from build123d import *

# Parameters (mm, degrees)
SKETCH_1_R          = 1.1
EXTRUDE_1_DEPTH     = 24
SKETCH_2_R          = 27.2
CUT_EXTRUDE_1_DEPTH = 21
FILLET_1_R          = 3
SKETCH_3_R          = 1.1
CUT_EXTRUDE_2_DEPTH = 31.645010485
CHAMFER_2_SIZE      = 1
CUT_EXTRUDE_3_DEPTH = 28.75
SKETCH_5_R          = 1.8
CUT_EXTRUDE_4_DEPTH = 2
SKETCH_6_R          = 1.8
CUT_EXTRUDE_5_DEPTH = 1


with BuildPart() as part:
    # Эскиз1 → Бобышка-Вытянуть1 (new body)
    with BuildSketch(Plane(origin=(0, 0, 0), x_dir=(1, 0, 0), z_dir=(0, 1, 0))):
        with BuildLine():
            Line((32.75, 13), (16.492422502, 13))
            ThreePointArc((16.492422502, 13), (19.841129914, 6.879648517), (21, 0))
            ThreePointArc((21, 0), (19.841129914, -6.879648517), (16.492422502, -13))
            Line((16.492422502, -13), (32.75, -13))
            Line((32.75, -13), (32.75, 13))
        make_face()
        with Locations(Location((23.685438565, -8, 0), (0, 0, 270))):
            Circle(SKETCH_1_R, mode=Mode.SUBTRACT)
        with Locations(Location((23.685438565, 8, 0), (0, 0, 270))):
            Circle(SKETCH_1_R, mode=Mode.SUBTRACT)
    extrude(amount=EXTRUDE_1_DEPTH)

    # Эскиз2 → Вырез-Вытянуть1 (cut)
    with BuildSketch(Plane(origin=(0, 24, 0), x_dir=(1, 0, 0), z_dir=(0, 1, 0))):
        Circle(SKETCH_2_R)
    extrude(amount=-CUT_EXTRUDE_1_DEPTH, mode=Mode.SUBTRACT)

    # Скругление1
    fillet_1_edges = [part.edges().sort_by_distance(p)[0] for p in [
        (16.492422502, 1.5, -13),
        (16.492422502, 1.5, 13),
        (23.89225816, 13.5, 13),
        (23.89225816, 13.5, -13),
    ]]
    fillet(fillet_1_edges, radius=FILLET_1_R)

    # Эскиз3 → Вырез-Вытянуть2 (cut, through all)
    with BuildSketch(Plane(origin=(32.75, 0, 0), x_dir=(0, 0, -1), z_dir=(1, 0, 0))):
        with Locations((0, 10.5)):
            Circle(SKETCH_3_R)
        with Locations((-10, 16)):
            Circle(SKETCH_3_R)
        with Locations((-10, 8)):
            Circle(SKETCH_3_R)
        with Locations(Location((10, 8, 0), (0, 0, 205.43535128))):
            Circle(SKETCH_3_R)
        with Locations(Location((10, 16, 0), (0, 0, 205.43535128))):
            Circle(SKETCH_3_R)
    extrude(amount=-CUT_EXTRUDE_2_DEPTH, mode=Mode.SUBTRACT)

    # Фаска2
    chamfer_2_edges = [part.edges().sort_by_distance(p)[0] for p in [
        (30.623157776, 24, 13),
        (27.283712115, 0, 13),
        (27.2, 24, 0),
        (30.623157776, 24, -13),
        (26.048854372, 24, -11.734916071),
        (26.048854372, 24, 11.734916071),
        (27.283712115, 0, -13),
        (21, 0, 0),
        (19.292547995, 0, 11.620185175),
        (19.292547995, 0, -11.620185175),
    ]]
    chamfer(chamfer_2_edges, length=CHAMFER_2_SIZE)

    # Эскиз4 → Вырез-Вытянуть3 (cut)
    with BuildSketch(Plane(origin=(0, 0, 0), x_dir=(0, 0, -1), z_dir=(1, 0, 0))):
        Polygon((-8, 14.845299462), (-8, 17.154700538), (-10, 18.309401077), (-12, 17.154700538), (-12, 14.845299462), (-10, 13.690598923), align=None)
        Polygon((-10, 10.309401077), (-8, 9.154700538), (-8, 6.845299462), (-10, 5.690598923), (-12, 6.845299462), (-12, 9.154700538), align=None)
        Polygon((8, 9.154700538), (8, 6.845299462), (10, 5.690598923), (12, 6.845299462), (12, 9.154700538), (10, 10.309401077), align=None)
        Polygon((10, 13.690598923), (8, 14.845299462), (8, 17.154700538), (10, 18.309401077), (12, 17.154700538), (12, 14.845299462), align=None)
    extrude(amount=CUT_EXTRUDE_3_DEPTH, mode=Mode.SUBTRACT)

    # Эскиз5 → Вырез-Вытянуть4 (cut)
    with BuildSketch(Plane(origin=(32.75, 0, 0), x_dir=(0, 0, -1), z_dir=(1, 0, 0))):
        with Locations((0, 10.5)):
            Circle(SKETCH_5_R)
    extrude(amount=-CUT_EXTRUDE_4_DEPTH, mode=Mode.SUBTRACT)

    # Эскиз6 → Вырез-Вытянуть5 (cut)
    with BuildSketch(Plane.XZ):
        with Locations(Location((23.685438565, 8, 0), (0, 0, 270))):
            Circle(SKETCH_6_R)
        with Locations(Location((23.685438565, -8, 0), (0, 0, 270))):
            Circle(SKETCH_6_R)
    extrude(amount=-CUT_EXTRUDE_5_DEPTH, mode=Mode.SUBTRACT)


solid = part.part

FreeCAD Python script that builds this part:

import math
import FreeCAD as App
import Part
import Sketcher

V = App.Vector
Q = App.Units.Quantity


def edges_at(feature, points):
    """Names of the edges that pass closest to the given points."""
    edges = feature.Shape.Edges
    near = lambda p: min(range(len(edges)), key=lambda i: edges[i].distToShape(Part.Vertex(*p))[0])
    return sorted({f"Edge{near(p) + 1}" for p in points})


def add_polygon(sketch, points):
    """Adds a closed chain of lines whose ends are joined by coincident constraints."""
    first, n = sketch.GeometryCount, len(points)
    for a, b in zip(points, points[1:] + points[:1]):
        sketch.addGeometry(Part.LineSegment(App.Vector(*a, 0), App.Vector(*b, 0)), False)
    for i in range(n):
        sketch.addConstraint(Sketcher.Constraint("Coincident", first + i, 2, first + (i + 1) % n, 1))

doc = App.newDocument("Part")
body = doc.addObject("PartDesign::Body", "Body")

sketch1 = body.newObject("Sketcher::SketchObject", "Sketch")
sketch1.AttachmentSupport = (doc.getObject("XZ_Plane"), [""])
sketch1.MapMode = "FlatFace"
sketch1.addGeometry(Part.LineSegment(V(32.75, -13, 0), V(16.492423, -13, 0)), False)
sketch1.addGeometry(Part.ArcOfCircle(Part.Circle(V(0, 0, 0), V(0, 0, 1), 21), math.radians(-38.24662), math.radians(0)), False)
sketch1.addGeometry(Part.ArcOfCircle(Part.Circle(V(0, 0, 0), V(0, 0, 1), 21), math.radians(0), math.radians(38.24662)), False)
sketch1.addGeometry(Part.LineSegment(V(16.492423, 13, 0), V(32.75, 13, 0)), False)
sketch1.addGeometry(Part.LineSegment(V(32.75, 13, 0), V(32.75, -13, 0)), False)
sketch1.addGeometry(Part.Circle(V(23.685439, 8, 0), V(0, 0, 1), 1.1), False)
sketch1.addGeometry(Part.Circle(V(23.685439, -8, 0), V(0, 0, 1), 1.1), False)
sketch1.addConstraint(Sketcher.Constraint("Coincident", 0, 2, 1, 1))
sketch1.addConstraint(Sketcher.Constraint("Tangent", 1, 2, 2, 1))
sketch1.addConstraint(Sketcher.Constraint("Coincident", 2, 2, 3, 1))
sketch1.addConstraint(Sketcher.Constraint("Coincident", 3, 2, 4, 1))
sketch1.addConstraint(Sketcher.Constraint("Coincident", 4, 2, 0, 1))
sketch1.addConstraint(Sketcher.Constraint("Horizontal", 0))
sketch1.addConstraint(Sketcher.Constraint("Horizontal", 3))
sketch1.addConstraint(Sketcher.Constraint("Vertical", 4))
sketch1.addConstraint(Sketcher.Constraint("Coincident", 1, 3, -1, 1))
sketch1.addConstraint(Sketcher.Constraint("Equal", 1, 2))
sketch1.addConstraint(Sketcher.Constraint("Equal", 5, 6))
sketch1.addConstraint(Sketcher.Constraint("Symmetric", 5, 3, 6, 3, -1))
sketch1.addConstraint(Sketcher.Constraint("PointOnObject", 1, 2, -1))
sketch1.addConstraint(Sketcher.Constraint("Vertical", 0, 2, 2, 2))
sketch1.addConstraint(Sketcher.Constraint("Radius", 1, 21.0))
sketch1.addConstraint(Sketcher.Constraint("Diameter", 5, 2.2))
sketch1.addConstraint(Sketcher.Constraint("DistanceY", 4, 2, 4, 1, 26.0))
sketch1.addConstraint(Sketcher.Constraint("DistanceY", -1, 1, 5, 3, 8.0))
sketch1.addConstraint(Sketcher.Constraint("DistanceX", -1, 1, 3, 2, 32.75))
sketch1.addConstraint(Sketcher.Constraint("DistanceX", -1, 1, 5, 3, 23.685439))
pad1 = body.newObject("PartDesign::Pad", "Pad")
pad1.Profile = sketch1
pad1.Length = 24
pad1.Reversed = True

sketch2 = body.newObject("Sketcher::SketchObject", "Sketch001")
sketch2.AttachmentSupport = (doc.getObject("XZ_Plane"), [""])
sketch2.MapMode = "FlatFace"
sketch2.AttachmentOffset = App.Placement(V(0, 0, -24), App.Rotation())
sketch2.addGeometry(Part.Circle(V(0, 0, 0), V(0, 0, 1), 27.2), False)
sketch2.addConstraint(Sketcher.Constraint("Coincident", 0, 3, -1, 1))
sketch2.addConstraint(Sketcher.Constraint("Diameter", 0, 54.4))
pocket1 = body.newObject("PartDesign::Pocket", "Pocket")
pocket1.Profile = sketch2
pocket1.Length = 21
pocket1.Reversed = True
doc.recompute()

fillet = body.newObject("PartDesign::Fillet", "Fillet")
fillet.Base = (pocket1, edges_at(pocket1, [
    (16.492, 1.5, -13),
    (16.492, 1.5, 13),
    (23.892, 13.5, 13),
    (23.892, 13.5, -13),
]))
fillet.Radius = 3

sketch3 = body.newObject("Sketcher::SketchObject", "Sketch002")
sketch3.AttachmentSupport = (doc.getObject("YZ_Plane"), [""])
sketch3.MapMode = "FlatFace"
sketch3.AttachmentOffset = App.Placement(V(0, 0, 32.75), App.Rotation())
sketch3.addGeometry(Part.Circle(V(10.5, 0, 0), V(0, 0, 1), 1.1), False)
sketch3.addGeometry(Part.Circle(V(16, 10, 0), V(0, 0, 1), 1.1), False)
sketch3.addGeometry(Part.Circle(V(8, 10, 0), V(0, 0, 1), 1.1), False)
sketch3.addGeometry(Part.Circle(V(8, -10, 0), V(0, 0, 1), 1.1), False)
sketch3.addGeometry(Part.Circle(V(16, -10, 0), V(0, 0, 1), 1.1), False)
sketch3.addConstraint(Sketcher.Constraint("Equal", 0, 1))
sketch3.addConstraint(Sketcher.Constraint("Equal", 1, 2))
sketch3.addConstraint(Sketcher.Constraint("Equal", 2, 3))
sketch3.addConstraint(Sketcher.Constraint("Equal", 3, 4))
sketch3.addConstraint(Sketcher.Constraint("Symmetric", 2, 3, 3, 3, -1))
sketch3.addConstraint(Sketcher.Constraint("Symmetric", 1, 3, 4, 3, -1))
sketch3.addConstraint(Sketcher.Constraint("PointOnObject", 0, 3, -1))
sketch3.addConstraint(Sketcher.Constraint("Horizontal", 1, 3, 2, 3))
sketch3.addConstraint(Sketcher.Constraint("Diameter", 0, 2.2))
sketch3.addConstraint(Sketcher.Constraint("DistanceX", -1, 1, 1, 3, 16.0))
sketch3.addConstraint(Sketcher.Constraint("DistanceY", -1, 1, 1, 3, 10.0))
sketch3.addConstraint(Sketcher.Constraint("DistanceX", -1, 1, 2, 3, 8.0))
sketch3.addConstraint(Sketcher.Constraint("DistanceX", -1, 1, 0, 3, 10.5))
pocket2 = body.newObject("PartDesign::Pocket", "Pocket001")
pocket2.Profile = sketch3
pocket2.Type = "ThroughAll"
doc.recompute()

chamfer = body.newObject("PartDesign::Chamfer", "Chamfer")
chamfer.Base = (pocket2, edges_at(pocket2, [
    (30.623, 24, 13),
    (27.284, 0, 13),
    (27.2, 24, 0),
    (30.623, 24, -13),
    (26.049, 24, -11.735),
    (26.049, 24, 11.735),
    (27.284, 0, -13),
    (20.517, 0, -4.478),
    (19.293, 0, 11.62),
    (19.293, 0, -11.62),
]))
chamfer.Size = 1

sketch4 = body.newObject("Sketcher::SketchObject", "Sketch003")
sketch4.AttachmentSupport = (doc.getObject("YZ_Plane"), [""])
sketch4.MapMode = "FlatFace"
add_polygon(sketch4, [(14.845299, 8), (17.154701, 8), (18.309401, 10), (17.154701, 12), (14.845299, 12), (13.690599, 10)])
add_polygon(sketch4, [(9.154701, 8), (10.309401, 10), (9.154701, 12), (6.845299, 12), (5.690599, 10), (6.845299, 8)])
add_polygon(sketch4, [(9.154701, -8), (6.845299, -8), (5.690599, -10), (6.845299, -12), (9.154701, -12), (10.309401, -10)])
add_polygon(sketch4, [(14.845299, -8), (13.690599, -10), (14.845299, -12), (17.154701, -12), (18.309401, -10), (17.154701, -8)])
sketch4.addConstraint(Sketcher.Constraint("Horizontal", 0))
sketch4.addConstraint(Sketcher.Constraint("Horizontal", 3))
sketch4.addConstraint(Sketcher.Constraint("Horizontal", 8))
sketch4.addConstraint(Sketcher.Constraint("Horizontal", 11))
sketch4.addConstraint(Sketcher.Constraint("Horizontal", 12))
sketch4.addConstraint(Sketcher.Constraint("Horizontal", 15))
sketch4.addConstraint(Sketcher.Constraint("Horizontal", 20))
sketch4.addConstraint(Sketcher.Constraint("Horizontal", 23))
sketch4.addConstraint(Sketcher.Constraint("Symmetric", 10, 2, 12, 2, -1))
sketch4.addConstraint(Sketcher.Constraint("Symmetric", 9, 2, 13, 2, -1))
sketch4.addConstraint(Sketcher.Constraint("Symmetric", 8, 2, 14, 2, -1))
sketch4.addConstraint(Sketcher.Constraint("Symmetric", 6, 2, 16, 2, -1))
sketch4.addConstraint(Sketcher.Constraint("Symmetric", 4, 2, 18, 2, -1))
sketch4.addConstraint(Sketcher.Constraint("Symmetric", 3, 2, 19, 2, -1))
sketch4.addConstraint(Sketcher.Constraint("Symmetric", 1, 2, 21, 2, -1))
sketch4.addConstraint(Sketcher.Constraint("Symmetric", 0, 2, 22, 2, -1))
sketch4.addConstraint(Sketcher.Constraint("Parallel", 1, 4))
sketch4.addConstraint(Sketcher.Constraint("Parallel", 2, 5))
sketch4.addConstraint(Sketcher.Constraint("Parallel", 4, 6))
sketch4.addConstraint(Sketcher.Constraint("Parallel", 5, 7))
sketch4.addConstraint(Sketcher.Constraint("Parallel", 6, 9))
sketch4.addConstraint(Sketcher.Constraint("Parallel", 7, 10))
sketch4.addConstraint(Sketcher.Constraint("Parallel", 9, 13))
sketch4.addConstraint(Sketcher.Constraint("Parallel", 13, 16))
sketch4.addConstraint(Sketcher.Constraint("Parallel", 14, 17))
sketch4.addConstraint(Sketcher.Constraint("Parallel", 16, 18))
sketch4.addConstraint(Sketcher.Constraint("Parallel", 18, 21))
sketch4.addConstraint(Sketcher.Constraint("Horizontal", 1, 2, 4, 2))
sketch4.addConstraint(Sketcher.Constraint("Horizontal", 4, 2, 6, 2))
sketch4.addConstraint(Sketcher.Constraint("Horizontal", 3, 2, 7, 2))
sketch4.addConstraint(Sketcher.Constraint("Horizontal", 6, 2, 9, 2))
sketch4.addConstraint(Sketcher.Constraint("Horizontal", 5, 2, 10, 2))
sketch4.addConstraint(Sketcher.Constraint("Vertical", 0, 2, 2, 2))
sketch4.addConstraint(Sketcher.Constraint("Equal", 3, 8))
sketch4.addConstraint(Sketcher.Constraint("Angle", 1, Q("60 deg")))
sketch4.addConstraint(Sketcher.Constraint("DistanceY", -1, 1, 0, 2, 8.0))
sketch4.addConstraint(Sketcher.Constraint("DistanceY", -1, 1, 1, 2, 10.0))
sketch4.addConstraint(Sketcher.Constraint("DistanceX", 7, 2, 2, 2, 8.0))
sketch4.addConstraint(Sketcher.Constraint("DistanceX", 0, 1, 0, 2, 2.309401))
sketch4.addConstraint(Sketcher.Constraint("DistanceX", -1, 1, 0, 2, 17.154701))
pocket3 = body.newObject("PartDesign::Pocket", "Pocket002")
pocket3.Profile = sketch4
pocket3.Length = 28.75
pocket3.Reversed = True

sketch5 = body.newObject("Sketcher::SketchObject", "Sketch004")
sketch5.AttachmentSupport = (doc.getObject("YZ_Plane"), [""])
sketch5.MapMode = "FlatFace"
sketch5.AttachmentOffset = App.Placement(V(0, 0, 32.75), App.Rotation())
sketch5.addGeometry(Part.Circle(V(10.5, 0, 0), V(0, 0, 1), 1.8), False)
sketch5.addConstraint(Sketcher.Constraint("PointOnObject", 0, 3, -1))
sketch5.addConstraint(Sketcher.Constraint("Diameter", 0, 3.6))
sketch5.addConstraint(Sketcher.Constraint("DistanceX", -1, 1, 0, 3, 10.5))
pocket4 = body.newObject("PartDesign::Pocket", "Pocket003")
pocket4.Profile = sketch5
pocket4.Length = 2

sketch6 = body.newObject("Sketcher::SketchObject", "Sketch005")
sketch6.AttachmentSupport = (doc.getObject("XZ_Plane"), [""])
sketch6.MapMode = "FlatFace"
sketch6.addGeometry(Part.Circle(V(23.685439, 8, 0), V(0, 0, 1), 1.8), False)
sketch6.addGeometry(Part.Circle(V(23.685439, -8, 0), V(0, 0, 1), 1.8), False)
sketch6.addConstraint(Sketcher.Constraint("Equal", 0, 1))
sketch6.addConstraint(Sketcher.Constraint("Symmetric", 0, 3, 1, 3, -1))
sketch6.addConstraint(Sketcher.Constraint("Diameter", 0, 3.6))
sketch6.addConstraint(Sketcher.Constraint("DistanceY", -1, 1, 0, 3, 8.0))
sketch6.addConstraint(Sketcher.Constraint("DistanceX", -1, 1, 0, 3, 23.685439))
pocket5 = body.newObject("PartDesign::Pocket", "Pocket004")
pocket5.Profile = sketch6
pocket5.Length = 1

doc.recompute()
